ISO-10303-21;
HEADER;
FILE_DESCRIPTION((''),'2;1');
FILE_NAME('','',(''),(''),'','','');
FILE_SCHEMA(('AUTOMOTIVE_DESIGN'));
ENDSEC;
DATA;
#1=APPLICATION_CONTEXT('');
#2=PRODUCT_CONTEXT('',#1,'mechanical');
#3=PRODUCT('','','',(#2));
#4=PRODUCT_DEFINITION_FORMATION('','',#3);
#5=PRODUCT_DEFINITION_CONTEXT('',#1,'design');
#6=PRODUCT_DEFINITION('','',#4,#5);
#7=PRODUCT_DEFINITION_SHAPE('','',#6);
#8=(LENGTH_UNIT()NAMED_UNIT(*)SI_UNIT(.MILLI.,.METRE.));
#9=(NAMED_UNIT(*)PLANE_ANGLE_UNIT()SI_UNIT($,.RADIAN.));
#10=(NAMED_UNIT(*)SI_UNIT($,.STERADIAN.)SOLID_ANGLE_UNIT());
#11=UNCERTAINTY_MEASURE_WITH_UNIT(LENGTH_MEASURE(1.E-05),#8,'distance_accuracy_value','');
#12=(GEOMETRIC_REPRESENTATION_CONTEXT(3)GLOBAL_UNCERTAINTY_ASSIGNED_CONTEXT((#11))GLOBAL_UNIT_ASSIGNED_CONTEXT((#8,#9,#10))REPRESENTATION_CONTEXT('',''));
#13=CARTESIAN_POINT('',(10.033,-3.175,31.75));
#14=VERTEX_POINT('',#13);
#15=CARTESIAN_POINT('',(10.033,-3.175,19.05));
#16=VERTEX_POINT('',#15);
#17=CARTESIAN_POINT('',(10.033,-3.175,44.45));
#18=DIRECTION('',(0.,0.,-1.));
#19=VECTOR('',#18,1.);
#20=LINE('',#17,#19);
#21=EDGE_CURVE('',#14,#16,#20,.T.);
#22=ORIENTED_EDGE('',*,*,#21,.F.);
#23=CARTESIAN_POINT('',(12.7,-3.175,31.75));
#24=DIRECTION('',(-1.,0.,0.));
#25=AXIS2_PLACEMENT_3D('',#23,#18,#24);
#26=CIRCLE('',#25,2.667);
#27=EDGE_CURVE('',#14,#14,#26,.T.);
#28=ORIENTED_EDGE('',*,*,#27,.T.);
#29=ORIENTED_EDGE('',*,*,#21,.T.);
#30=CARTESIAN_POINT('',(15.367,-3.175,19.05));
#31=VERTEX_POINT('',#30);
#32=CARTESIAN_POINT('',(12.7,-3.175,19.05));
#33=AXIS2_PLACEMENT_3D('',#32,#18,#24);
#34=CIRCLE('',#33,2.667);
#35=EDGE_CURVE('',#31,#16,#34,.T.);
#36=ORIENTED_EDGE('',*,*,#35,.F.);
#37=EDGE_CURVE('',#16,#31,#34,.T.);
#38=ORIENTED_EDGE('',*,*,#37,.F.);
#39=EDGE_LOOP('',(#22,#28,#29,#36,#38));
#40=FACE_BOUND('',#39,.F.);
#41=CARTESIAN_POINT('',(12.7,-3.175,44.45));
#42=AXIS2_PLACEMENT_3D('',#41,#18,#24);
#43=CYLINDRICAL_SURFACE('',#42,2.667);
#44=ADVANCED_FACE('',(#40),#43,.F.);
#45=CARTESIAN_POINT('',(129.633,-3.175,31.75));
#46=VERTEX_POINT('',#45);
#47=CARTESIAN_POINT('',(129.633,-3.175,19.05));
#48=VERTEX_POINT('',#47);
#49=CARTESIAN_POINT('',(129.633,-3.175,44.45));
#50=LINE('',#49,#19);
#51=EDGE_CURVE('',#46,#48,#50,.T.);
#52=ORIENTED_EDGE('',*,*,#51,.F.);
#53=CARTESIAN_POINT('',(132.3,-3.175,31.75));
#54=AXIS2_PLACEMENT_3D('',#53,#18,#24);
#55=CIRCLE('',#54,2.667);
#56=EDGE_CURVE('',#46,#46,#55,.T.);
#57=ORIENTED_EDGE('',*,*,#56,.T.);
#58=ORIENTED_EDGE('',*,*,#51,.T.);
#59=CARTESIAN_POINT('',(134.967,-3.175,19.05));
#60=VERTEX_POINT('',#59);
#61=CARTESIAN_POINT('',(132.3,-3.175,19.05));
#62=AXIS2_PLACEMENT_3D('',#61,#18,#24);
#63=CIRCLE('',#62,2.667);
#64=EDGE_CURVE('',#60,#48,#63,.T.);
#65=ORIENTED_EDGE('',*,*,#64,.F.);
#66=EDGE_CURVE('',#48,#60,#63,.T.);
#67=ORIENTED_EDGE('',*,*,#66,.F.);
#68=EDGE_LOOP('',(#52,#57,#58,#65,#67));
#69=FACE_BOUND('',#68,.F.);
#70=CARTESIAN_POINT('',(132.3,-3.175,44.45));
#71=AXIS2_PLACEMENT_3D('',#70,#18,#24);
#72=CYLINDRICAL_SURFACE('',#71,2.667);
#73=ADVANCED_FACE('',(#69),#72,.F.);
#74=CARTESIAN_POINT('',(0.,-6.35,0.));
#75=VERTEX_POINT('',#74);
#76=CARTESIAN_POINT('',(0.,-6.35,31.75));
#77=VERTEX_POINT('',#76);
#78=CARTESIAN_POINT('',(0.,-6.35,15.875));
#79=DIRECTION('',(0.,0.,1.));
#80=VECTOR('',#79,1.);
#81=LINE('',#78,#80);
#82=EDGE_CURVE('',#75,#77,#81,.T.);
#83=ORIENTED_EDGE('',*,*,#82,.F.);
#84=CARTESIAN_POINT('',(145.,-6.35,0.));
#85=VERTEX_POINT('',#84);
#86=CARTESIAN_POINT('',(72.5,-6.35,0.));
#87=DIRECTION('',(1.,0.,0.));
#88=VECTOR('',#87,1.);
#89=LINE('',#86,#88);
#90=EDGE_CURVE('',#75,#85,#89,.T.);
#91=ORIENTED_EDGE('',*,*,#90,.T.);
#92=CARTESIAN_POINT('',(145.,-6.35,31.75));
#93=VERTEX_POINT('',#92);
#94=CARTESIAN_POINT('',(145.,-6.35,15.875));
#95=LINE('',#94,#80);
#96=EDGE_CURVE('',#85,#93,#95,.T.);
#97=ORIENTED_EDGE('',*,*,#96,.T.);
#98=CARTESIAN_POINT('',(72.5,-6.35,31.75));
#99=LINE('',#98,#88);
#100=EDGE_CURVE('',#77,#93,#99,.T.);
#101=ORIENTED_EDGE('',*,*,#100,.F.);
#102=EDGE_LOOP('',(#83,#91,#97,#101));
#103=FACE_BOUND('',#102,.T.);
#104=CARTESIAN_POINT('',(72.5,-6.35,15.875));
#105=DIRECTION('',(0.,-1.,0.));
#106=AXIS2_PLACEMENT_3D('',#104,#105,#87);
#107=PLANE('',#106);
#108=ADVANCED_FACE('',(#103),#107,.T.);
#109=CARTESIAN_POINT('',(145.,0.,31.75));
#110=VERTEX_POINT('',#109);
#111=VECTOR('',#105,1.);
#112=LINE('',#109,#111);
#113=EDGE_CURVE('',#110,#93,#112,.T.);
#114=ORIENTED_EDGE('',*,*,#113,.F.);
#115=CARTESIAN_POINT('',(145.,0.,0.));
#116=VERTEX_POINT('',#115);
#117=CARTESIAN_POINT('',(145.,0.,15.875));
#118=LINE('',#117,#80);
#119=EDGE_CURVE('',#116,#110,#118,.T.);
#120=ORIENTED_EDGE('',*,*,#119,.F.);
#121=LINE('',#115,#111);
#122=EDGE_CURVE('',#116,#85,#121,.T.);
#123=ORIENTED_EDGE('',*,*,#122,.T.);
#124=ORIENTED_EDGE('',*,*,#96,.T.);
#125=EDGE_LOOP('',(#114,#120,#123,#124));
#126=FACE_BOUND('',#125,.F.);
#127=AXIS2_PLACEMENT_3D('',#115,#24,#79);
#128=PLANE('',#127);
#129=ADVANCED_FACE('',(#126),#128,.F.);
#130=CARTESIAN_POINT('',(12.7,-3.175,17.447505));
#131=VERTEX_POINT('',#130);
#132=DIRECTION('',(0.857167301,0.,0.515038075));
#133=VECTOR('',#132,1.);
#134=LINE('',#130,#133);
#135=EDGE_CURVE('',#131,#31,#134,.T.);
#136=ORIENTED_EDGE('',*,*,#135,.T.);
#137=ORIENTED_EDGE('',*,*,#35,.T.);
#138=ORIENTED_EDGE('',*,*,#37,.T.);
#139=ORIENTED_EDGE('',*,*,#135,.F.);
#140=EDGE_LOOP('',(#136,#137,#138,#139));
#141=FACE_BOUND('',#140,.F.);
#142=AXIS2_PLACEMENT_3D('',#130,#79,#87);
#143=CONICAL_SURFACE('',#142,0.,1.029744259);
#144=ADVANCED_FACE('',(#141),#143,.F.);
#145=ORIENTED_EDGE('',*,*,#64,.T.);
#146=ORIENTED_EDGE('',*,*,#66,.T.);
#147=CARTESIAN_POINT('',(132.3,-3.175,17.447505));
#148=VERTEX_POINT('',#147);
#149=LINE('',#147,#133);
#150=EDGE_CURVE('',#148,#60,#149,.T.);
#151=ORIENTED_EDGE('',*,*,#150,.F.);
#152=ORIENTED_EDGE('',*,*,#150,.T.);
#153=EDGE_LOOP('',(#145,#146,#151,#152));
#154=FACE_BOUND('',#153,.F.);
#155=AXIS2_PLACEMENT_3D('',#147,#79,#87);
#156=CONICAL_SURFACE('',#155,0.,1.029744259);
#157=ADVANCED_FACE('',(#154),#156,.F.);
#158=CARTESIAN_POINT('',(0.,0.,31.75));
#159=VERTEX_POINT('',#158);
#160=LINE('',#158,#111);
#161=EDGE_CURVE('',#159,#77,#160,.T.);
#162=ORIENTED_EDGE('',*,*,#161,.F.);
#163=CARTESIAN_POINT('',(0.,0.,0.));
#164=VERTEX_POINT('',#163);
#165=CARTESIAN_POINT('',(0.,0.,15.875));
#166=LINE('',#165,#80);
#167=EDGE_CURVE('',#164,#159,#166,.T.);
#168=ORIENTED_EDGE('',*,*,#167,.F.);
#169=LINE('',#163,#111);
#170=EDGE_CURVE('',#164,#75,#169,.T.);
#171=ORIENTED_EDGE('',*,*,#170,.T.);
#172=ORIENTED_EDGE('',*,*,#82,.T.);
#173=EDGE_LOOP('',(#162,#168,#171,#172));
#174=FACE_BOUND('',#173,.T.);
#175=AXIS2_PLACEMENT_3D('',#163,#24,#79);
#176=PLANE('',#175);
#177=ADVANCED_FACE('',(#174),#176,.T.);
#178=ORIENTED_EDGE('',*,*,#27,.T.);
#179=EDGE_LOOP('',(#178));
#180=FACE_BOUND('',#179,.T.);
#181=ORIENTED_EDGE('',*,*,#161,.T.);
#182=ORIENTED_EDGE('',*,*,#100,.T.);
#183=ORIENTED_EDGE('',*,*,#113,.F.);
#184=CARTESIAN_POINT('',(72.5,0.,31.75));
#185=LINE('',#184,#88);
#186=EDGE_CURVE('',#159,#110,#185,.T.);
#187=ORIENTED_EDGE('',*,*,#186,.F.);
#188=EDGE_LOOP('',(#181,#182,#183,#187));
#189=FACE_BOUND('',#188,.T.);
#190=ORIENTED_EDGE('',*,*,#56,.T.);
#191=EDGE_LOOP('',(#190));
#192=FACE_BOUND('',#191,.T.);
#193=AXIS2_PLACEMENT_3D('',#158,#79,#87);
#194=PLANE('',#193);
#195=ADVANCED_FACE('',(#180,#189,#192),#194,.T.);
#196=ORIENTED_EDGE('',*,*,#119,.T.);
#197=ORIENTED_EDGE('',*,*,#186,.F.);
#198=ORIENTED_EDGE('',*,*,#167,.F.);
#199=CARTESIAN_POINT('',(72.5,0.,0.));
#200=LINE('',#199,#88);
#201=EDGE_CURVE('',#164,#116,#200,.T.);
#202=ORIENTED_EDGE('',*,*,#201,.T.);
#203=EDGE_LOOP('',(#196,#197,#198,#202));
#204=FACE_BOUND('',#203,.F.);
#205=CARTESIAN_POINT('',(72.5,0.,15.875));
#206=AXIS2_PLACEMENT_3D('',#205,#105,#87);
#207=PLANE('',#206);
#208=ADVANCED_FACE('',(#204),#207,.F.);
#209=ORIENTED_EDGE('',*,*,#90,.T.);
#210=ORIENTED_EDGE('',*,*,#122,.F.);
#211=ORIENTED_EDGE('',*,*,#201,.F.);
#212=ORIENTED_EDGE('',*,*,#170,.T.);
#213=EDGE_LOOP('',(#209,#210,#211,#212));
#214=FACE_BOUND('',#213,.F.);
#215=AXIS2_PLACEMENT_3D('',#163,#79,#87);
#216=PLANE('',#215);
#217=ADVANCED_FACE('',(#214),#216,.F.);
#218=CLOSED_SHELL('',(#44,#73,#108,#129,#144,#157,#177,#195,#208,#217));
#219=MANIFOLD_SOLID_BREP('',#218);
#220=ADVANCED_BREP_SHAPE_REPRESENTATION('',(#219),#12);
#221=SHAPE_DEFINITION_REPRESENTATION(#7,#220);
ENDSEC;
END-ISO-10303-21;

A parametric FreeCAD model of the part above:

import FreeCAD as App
import Part
import Sketcher

V = App.Vector
Q = App.Units.Quantity

doc = App.newDocument("Part")
body = doc.addObject("PartDesign::Body", "Body")

# Sketch on XZ plane
sketch1 = body.newObject("Sketcher::SketchObject", "Sketch")
sketch1.AttachmentSupport = (doc.getObject("XZ_Plane"), [""])
sketch1.MapMode = "FlatFace"
sketch1.addGeometry(Part.LineSegment(V(0, 32, 0), V(0, 0, 0)), False)
sketch1.addGeometry(Part.LineSegment(V(0, 0, 0), V(145, 0, 0)), False)
sketch1.addGeometry(Part.LineSegment(V(145, 0, 0), V(145, 32, 0)), False)
sketch1.addGeometry(Part.LineSegment(V(145, 32, 0), V(0, 32, 0)), False)
sketch1.addConstraint(Sketcher.Constraint("Coincident", 0, 2, 1, 1))
sketch1.addConstraint(Sketcher.Constraint("Coincident", 1, 2, 2, 1))
sketch1.addConstraint(Sketcher.Constraint("Coincident", 2, 2, 3, 1))
sketch1.addConstraint(Sketcher.Constraint("Coincident", 3, 2, 0, 1))
sketch1.addConstraint(Sketcher.Constraint("Vertical", 0))
sketch1.addConstraint(Sketcher.Constraint("Horizontal", 1))
sketch1.addConstraint(Sketcher.Constraint("Vertical", 2))
sketch1.addConstraint(Sketcher.Constraint("Horizontal", 3))
sketch1.addConstraint(Sketcher.Constraint("Coincident", 0, 2, -1, 1))
sketch1.addConstraint(Sketcher.Constraint("DistanceY", 0, 2, 0, 1, Q("1.25 in")))
sketch1.addConstraint(Sketcher.Constraint("DistanceX", 1, 1, 1, 2, 145.0))
pad1 = body.newObject("PartDesign::Pad", "Pad")
pad1.Profile = sketch1
pad1.Length = Q("0.25 in")

# Sketch on XY plane
sketch2 = body.newObject("Sketcher::SketchObject", "Sketch001")
sketch2.AttachmentSupport = (doc.getObject("XY_Plane"), [""])
sketch2.MapMode = "FlatFace"
sketch2.AttachmentOffset = App.Placement(V(0, 0, 1.25 * 25.4), App.Rotation())
sketch2.addGeometry(Part.Circle(V(12.7, -3.2, 0), V(0, 0, 1), 2.7), False)
sketch2.addGeometry(Part.Circle(V(132.3, -3.2, 0), V(0, 0, 1), 2.7), False)
sketch2.addConstraint(Sketcher.Constraint("Equal", 0, 1))
sketch2.addConstraint(Sketcher.Constraint("Horizontal", 0, 3, 1, 3))
sketch2.addConstraint(Sketcher.Constraint("Diameter", 0, Q("0.21 in")))
sketch2.addConstraint(Sketcher.Constraint("DistanceX", -1, 1, 0, 3, Q("0.5 in")))
sketch2.addConstraint(Sketcher.Constraint("DistanceY", 0, 3, -1, 1, Q("0.125 in")))
sketch2.addConstraint(Sketcher.Constraint("DistanceX", -1, 1, 1, 3, 132.3))
doc.recompute()
hole = body.newObject("PartDesign::Hole", "Hole")
hole.Profile = sketch2
hole.ThreadType = "None"
hole.Diameter = Q("0.21 in")
hole.DepthType = "Dimension"
hole.Depth = Q("0.5 in")
hole.DrillPoint = "Angled"
hole.DrillPointAngle = 118

doc.recompute()
